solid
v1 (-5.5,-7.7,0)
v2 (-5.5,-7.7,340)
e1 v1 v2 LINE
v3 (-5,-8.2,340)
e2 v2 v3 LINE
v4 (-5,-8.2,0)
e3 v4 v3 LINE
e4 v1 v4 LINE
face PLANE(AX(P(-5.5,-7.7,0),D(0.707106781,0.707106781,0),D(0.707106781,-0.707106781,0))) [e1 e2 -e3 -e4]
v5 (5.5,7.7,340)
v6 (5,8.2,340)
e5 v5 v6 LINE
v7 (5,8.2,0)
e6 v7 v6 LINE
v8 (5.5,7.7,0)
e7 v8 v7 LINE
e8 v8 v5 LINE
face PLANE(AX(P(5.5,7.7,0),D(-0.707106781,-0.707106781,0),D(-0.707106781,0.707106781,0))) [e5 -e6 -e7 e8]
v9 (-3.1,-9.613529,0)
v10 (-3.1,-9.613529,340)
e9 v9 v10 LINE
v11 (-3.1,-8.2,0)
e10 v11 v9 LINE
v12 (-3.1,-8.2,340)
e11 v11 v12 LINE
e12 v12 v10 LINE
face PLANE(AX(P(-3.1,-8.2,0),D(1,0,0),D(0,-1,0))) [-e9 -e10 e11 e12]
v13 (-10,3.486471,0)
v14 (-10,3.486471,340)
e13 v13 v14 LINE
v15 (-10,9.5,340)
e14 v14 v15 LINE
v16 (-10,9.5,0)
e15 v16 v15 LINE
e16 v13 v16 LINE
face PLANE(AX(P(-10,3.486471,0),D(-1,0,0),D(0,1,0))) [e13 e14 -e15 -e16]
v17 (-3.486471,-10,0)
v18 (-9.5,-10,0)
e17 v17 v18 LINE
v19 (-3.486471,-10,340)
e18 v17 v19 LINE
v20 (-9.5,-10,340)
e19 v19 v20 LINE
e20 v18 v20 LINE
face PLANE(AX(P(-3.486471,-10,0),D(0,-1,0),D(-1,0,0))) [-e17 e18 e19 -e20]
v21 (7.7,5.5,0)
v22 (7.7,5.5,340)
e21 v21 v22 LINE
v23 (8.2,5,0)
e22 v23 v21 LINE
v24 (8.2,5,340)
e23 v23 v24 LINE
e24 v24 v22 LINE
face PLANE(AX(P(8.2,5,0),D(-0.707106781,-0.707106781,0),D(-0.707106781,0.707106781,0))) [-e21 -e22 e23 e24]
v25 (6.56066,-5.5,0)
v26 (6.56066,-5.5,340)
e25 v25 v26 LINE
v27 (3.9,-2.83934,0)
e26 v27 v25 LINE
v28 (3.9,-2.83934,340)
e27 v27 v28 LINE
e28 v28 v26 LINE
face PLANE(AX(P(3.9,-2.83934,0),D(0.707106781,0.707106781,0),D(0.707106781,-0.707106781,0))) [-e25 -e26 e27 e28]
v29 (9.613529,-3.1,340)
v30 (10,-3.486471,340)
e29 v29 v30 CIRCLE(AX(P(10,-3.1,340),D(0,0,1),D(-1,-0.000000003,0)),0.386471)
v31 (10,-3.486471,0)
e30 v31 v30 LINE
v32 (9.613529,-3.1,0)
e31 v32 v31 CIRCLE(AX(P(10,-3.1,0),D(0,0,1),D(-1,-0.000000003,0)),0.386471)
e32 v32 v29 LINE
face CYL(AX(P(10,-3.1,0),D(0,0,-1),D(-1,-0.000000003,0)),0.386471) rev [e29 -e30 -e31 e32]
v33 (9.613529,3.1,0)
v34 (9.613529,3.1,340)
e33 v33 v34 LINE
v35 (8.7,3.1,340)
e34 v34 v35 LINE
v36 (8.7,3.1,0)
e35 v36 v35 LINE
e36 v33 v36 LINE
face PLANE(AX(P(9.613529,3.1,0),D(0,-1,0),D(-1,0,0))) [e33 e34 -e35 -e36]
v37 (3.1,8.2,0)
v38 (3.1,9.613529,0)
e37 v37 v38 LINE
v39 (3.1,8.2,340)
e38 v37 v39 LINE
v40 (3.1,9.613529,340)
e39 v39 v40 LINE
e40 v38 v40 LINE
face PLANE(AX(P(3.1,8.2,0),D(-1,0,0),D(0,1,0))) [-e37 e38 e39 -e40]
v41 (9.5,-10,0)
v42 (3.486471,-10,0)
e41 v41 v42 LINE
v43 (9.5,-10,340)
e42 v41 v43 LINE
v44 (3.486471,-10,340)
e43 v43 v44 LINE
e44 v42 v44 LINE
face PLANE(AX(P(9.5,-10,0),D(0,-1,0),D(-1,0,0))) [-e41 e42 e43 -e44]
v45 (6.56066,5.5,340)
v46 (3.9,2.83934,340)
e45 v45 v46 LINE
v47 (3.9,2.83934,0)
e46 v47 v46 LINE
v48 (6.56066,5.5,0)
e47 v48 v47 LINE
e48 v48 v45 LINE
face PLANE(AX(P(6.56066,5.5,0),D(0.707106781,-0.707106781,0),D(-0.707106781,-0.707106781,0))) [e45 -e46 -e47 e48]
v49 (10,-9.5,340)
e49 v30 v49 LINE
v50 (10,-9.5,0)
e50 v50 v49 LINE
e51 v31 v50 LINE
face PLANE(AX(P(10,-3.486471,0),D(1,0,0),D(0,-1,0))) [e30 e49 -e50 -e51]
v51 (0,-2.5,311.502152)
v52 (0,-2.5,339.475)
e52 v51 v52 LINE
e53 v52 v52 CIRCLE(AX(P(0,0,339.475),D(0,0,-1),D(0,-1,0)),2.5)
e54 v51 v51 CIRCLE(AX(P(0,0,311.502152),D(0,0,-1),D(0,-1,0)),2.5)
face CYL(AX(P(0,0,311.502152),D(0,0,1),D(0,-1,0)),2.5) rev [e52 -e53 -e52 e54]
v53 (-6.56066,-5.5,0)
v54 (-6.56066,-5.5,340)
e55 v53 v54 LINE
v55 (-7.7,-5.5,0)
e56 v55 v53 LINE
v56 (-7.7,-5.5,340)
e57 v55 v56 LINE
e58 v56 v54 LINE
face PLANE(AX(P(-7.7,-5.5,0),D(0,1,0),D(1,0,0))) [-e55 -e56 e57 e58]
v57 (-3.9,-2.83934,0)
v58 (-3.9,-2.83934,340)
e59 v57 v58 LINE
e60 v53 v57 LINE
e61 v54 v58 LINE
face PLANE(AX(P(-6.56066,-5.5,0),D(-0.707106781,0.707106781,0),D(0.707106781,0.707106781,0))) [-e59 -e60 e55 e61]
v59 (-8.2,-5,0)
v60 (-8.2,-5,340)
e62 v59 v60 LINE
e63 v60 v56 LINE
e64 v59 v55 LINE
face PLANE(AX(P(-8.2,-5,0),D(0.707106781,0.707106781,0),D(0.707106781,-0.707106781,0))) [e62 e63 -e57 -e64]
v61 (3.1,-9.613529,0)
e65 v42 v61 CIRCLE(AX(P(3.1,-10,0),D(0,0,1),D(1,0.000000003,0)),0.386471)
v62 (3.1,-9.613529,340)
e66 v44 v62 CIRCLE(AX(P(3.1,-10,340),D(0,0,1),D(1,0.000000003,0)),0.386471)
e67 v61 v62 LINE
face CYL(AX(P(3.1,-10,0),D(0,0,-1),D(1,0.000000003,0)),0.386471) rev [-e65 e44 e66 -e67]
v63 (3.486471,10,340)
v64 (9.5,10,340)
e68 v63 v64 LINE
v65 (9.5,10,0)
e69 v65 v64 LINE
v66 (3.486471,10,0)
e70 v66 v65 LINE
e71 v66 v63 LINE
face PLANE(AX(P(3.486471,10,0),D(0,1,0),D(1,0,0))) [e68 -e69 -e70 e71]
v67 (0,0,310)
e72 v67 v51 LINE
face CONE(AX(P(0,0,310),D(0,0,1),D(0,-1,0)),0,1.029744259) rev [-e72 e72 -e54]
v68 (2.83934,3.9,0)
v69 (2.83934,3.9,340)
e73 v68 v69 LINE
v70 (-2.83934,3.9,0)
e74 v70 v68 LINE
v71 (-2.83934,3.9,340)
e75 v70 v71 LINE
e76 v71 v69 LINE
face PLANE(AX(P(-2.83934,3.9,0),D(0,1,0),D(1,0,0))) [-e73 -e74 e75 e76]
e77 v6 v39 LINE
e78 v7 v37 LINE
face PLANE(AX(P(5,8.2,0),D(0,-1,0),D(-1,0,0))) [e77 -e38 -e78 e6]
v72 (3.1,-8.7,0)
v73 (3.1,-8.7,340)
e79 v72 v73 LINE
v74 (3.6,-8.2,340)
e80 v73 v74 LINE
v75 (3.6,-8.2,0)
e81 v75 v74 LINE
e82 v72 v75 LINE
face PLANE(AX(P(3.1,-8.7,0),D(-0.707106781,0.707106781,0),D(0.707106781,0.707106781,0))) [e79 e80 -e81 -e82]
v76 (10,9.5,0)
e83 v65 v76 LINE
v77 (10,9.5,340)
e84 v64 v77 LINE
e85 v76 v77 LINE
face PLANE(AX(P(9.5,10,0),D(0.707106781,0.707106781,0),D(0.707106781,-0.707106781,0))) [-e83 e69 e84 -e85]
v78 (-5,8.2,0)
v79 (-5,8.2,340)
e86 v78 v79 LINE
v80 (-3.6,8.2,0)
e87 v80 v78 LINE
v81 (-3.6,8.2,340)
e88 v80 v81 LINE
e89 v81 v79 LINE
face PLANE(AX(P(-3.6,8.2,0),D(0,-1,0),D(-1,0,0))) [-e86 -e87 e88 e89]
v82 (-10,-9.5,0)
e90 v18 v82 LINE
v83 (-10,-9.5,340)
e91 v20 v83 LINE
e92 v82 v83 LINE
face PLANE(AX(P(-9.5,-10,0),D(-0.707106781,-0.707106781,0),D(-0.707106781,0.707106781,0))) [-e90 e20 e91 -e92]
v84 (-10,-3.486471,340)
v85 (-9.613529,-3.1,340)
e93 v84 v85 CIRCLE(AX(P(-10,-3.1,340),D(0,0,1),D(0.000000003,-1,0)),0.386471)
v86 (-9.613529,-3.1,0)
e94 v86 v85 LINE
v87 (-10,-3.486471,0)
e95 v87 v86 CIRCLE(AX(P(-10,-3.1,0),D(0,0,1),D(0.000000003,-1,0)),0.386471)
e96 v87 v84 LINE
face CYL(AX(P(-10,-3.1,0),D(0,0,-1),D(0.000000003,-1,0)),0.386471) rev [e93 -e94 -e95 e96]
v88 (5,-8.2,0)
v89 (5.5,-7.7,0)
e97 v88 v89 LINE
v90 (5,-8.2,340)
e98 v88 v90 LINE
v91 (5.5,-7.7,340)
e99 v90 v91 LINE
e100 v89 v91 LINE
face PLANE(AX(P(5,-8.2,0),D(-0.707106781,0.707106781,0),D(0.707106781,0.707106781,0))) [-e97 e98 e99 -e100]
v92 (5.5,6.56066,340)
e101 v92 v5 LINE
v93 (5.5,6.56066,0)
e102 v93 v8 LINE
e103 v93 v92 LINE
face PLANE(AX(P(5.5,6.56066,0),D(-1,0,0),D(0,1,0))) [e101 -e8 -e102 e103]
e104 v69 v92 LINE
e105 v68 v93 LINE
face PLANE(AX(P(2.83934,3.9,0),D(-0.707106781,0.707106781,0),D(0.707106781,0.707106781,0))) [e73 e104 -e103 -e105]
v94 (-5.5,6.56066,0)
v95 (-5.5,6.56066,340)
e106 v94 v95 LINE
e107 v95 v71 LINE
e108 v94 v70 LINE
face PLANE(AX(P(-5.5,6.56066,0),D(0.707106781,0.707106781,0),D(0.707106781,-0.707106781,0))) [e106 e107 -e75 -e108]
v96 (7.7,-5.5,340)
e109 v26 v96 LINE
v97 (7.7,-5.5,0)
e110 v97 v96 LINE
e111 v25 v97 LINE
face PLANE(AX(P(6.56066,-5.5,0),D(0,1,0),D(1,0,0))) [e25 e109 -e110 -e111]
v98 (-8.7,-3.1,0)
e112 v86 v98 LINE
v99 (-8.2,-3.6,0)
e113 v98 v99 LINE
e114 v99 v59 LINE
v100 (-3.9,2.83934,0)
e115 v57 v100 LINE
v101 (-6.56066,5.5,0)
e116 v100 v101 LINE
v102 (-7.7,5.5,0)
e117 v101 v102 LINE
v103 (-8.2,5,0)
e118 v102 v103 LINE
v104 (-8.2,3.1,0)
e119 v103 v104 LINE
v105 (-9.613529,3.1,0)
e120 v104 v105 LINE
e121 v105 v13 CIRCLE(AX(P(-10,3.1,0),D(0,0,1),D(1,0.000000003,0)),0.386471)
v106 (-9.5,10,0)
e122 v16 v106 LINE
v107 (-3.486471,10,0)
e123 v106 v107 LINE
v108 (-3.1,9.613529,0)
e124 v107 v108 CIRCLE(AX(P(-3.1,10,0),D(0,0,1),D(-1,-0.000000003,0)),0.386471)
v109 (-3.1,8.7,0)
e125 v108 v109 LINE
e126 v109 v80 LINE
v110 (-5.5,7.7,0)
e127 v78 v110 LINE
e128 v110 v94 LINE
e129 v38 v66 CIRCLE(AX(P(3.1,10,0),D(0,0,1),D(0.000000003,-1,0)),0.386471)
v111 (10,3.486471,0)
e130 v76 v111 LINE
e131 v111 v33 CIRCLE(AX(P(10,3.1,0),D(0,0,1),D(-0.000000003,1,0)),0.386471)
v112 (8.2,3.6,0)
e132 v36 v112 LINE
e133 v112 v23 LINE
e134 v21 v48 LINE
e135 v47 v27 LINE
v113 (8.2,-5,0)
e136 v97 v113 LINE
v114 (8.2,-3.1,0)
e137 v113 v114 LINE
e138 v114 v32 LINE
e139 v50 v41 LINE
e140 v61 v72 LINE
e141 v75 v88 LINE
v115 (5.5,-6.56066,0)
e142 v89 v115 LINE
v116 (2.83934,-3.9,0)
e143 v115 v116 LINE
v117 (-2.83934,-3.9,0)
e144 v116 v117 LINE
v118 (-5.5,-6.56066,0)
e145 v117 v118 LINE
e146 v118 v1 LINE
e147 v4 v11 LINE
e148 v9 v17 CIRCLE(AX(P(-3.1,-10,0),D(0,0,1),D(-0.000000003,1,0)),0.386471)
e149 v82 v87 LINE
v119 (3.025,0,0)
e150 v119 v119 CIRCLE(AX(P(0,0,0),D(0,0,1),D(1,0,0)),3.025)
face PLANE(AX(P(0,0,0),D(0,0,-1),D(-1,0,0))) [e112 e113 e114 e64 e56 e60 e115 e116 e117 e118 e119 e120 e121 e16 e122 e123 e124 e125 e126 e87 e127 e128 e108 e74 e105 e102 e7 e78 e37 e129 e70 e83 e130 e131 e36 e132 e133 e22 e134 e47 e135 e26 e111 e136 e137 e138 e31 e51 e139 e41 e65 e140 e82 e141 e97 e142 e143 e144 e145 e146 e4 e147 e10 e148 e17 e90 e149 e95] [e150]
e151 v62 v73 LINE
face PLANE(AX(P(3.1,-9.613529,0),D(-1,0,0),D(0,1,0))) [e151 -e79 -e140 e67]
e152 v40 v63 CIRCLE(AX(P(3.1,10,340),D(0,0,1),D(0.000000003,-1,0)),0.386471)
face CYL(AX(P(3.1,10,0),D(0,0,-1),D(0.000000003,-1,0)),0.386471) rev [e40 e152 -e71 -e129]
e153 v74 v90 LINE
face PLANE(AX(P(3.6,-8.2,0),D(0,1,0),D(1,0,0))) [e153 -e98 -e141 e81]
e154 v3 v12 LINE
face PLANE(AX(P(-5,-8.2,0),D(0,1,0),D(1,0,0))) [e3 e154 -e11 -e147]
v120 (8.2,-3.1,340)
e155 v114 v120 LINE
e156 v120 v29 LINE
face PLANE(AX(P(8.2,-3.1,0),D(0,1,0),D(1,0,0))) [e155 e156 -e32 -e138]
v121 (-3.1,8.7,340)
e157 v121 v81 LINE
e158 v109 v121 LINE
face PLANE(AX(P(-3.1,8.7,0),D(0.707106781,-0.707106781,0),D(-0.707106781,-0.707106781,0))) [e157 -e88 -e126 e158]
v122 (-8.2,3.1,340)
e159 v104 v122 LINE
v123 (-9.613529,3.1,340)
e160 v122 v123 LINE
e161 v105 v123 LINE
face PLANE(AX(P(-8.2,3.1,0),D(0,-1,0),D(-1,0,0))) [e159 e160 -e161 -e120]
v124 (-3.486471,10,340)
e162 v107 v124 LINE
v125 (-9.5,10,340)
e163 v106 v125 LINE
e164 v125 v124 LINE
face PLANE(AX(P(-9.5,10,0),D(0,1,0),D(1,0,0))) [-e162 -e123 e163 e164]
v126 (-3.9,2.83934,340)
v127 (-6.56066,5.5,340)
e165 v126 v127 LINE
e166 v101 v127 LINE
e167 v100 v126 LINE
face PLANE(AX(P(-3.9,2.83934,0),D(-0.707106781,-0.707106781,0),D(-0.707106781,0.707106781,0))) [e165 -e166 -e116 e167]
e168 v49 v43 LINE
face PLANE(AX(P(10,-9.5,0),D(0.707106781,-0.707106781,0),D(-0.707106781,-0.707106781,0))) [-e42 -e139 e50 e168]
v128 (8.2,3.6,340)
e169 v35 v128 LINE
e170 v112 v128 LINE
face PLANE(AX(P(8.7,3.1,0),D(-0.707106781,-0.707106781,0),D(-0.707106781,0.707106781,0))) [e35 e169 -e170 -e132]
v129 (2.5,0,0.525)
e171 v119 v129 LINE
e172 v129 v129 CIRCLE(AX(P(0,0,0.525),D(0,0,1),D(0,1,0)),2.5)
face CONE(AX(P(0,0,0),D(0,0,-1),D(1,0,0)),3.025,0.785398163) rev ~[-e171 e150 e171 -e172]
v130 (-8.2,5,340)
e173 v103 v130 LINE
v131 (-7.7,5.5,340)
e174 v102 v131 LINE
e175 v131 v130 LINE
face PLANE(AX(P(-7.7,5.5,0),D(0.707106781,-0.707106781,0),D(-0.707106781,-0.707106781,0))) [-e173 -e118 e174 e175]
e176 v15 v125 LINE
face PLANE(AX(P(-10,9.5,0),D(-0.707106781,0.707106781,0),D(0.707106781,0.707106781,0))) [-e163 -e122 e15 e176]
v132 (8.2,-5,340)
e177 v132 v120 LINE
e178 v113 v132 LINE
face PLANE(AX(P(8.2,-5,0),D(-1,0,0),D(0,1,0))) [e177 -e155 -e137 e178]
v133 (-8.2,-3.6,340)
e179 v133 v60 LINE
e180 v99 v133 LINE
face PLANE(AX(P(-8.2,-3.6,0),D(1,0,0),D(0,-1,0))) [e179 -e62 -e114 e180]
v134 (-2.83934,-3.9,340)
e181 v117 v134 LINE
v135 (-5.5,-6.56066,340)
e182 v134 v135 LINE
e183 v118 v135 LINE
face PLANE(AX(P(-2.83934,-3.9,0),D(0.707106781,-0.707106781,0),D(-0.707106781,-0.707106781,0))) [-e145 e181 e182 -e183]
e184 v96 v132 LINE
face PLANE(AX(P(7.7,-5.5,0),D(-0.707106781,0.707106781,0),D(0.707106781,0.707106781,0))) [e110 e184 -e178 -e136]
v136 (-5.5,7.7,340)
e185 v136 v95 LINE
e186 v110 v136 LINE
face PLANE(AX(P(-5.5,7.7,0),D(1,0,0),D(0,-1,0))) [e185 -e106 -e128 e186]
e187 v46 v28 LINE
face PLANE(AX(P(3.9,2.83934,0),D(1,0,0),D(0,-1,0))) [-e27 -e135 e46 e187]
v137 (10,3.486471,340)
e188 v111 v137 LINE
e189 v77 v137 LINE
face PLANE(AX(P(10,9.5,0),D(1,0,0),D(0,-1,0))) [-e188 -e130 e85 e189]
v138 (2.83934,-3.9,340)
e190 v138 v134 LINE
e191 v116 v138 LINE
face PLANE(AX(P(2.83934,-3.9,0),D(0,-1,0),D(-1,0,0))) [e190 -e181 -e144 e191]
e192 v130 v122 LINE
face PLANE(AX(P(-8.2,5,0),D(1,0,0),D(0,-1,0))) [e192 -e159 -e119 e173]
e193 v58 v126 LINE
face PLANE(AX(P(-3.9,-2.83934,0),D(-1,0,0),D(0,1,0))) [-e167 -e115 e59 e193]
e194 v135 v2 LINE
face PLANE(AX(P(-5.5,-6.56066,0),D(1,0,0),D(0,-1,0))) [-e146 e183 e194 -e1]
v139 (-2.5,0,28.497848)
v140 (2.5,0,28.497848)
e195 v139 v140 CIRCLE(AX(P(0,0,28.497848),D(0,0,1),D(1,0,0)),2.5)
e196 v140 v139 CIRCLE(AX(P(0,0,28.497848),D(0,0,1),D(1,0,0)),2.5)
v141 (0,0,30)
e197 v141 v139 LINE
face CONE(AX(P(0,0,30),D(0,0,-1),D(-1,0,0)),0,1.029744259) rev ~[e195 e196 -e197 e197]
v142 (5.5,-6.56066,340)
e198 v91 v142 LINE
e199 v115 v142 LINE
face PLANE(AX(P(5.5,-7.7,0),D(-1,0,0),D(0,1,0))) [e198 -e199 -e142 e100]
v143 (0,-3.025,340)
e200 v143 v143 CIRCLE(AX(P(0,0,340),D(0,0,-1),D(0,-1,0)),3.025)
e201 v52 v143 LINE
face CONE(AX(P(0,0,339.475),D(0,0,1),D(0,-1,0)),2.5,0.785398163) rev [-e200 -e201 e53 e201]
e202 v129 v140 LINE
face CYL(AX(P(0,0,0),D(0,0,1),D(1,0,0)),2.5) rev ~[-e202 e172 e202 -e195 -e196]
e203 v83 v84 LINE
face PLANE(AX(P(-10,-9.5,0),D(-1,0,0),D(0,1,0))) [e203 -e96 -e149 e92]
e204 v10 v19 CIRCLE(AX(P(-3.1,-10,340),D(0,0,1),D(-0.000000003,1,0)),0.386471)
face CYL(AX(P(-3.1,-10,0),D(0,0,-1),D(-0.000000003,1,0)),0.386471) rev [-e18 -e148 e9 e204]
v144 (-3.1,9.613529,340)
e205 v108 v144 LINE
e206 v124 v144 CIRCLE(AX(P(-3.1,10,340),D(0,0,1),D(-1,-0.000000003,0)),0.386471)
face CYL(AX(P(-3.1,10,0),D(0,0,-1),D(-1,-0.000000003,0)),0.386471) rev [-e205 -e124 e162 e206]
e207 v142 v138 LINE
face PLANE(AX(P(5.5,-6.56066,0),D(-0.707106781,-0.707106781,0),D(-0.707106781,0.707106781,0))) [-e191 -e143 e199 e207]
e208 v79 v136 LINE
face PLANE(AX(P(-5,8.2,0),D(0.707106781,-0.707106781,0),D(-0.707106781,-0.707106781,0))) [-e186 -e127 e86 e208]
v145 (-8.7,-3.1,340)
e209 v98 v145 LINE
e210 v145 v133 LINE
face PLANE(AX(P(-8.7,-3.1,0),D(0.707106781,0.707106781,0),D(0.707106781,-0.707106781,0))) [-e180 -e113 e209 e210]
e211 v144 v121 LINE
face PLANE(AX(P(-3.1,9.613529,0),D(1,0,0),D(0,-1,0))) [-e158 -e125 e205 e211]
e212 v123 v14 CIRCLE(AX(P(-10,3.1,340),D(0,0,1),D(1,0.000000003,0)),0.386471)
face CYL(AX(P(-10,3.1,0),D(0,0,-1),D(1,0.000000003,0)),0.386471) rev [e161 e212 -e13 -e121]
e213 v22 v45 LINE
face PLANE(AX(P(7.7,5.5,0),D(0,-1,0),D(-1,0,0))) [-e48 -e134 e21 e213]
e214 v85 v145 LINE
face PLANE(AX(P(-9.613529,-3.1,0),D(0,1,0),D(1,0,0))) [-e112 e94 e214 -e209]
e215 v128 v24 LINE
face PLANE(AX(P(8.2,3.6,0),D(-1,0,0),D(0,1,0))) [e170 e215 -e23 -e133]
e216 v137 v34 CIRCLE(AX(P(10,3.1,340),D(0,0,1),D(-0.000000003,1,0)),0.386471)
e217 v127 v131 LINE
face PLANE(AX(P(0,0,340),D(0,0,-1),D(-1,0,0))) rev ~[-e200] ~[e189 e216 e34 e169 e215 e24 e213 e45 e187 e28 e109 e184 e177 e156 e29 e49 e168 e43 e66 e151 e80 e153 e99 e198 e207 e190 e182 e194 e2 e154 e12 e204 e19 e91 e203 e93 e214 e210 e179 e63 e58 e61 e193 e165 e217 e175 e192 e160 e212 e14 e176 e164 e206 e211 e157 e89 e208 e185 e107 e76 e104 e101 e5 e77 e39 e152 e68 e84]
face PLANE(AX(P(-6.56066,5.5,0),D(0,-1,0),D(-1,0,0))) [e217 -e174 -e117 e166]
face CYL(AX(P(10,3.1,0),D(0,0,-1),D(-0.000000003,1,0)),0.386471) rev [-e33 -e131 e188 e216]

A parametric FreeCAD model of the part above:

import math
import FreeCAD as App
import Part
import Sketcher
Q = App.Units.Quantity


def add_polygon(sketch, points):
    """Adds a closed chain of lines whose ends are joined by coincident constraints."""
    first, n = sketch.GeometryCount, len(points)
    for a, b in zip(points, points[1:] + points[:1]):
        sketch.addGeometry(Part.LineSegment(App.Vector(*a, 0), App.Vector(*b, 0)), False)
    for i in range(n):
        sketch.addConstraint(Sketcher.Constraint("Coincident", first + i, 2, first + (i + 1) % n, 1))

doc = App.newDocument("Part")
body = doc.addObject("PartDesign::Body", "Body")

sketch1 = body.newObject("Sketcher::SketchObject", "Sketch")
sketch1.AttachmentSupport = (doc.getObject("XY_Plane"), [""])
sketch1.MapMode = "FlatFace"
sketch1.addGeometry(Part.LineSegment(App.Vector(-3.49, 10, 0), App.Vector(-9.5, 10, 0)), False)
sketch1.addGeometry(Part.LineSegment(App.Vector(-9.5, 10, 0), App.Vector(-10, 9.5, 0)), False)
sketch1.addGeometry(Part.LineSegment(App.Vector(-10, 9.5, 0), App.Vector(-10, 3.49, 0)), False)
sketch1.addGeometry(Part.ArcOfCircle(Part.Circle(App.Vector(-10, 3.1, 0), App.Vector(0, 0, 1), 0.39), math.radians(0), math.radians(90)), False)
sketch1.addGeometry(Part.LineSegment(App.Vector(-9.61, 3.1, 0), App.Vector(-8.2, 3.1, 0)), False)
sketch1.addGeometry(Part.LineSegment(App.Vector(-8.2, 3.1, 0), App.Vector(-8.2, 5, 0)), False)
sketch1.addGeometry(Part.LineSegment(App.Vector(-8.2, 5, 0), App.Vector(-7.7, 5.5, 0)), False)
sketch1.addGeometry(Part.LineSegment(App.Vector(-7.7, 5.5, 0), App.Vector(-6.56, 5.5, 0)), False)
sketch1.addGeometry(Part.LineSegment(App.Vector(-6.56, 5.5, 0), App.Vector(-3.9, 2.84, 0)), False)
sketch1.addGeometry(Part.LineSegment(App.Vector(-3.9, 2.84, 0), App.Vector(-3.9, -2.84, 0)), False)
sketch1.addGeometry(Part.LineSegment(App.Vector(-3.9, -2.84, 0), App.Vector(-6.56, -5.5, 0)), False)
sketch1.addGeometry(Part.LineSegment(App.Vector(-6.56, -5.5, 0), App.Vector(-7.7, -5.5, 0)), False)
sketch1.addGeometry(Part.LineSegment(App.Vector(-7.7, -5.5, 0), App.Vector(-8.2, -5, 0)), False)
sketch1.addGeometry(Part.LineSegment(App.Vector(-8.2, -5, 0), App.Vector(-8.2, -3.6, 0)), False)
sketch1.addGeometry(Part.LineSegment(App.Vector(-8.2, -3.6, 0), App.Vector(-8.7, -3.1, 0)), False)
sketch1.addGeometry(Part.LineSegment(App.Vector(-8.7, -3.1, 0), App.Vector(-9.61, -3.1, 0)), False)
sketch1.addGeometry(Part.ArcOfCircle(Part.Circle(App.Vector(-10, -3.1, 0), App.Vector(0, 0, 1), 0.39), math.radians(-90), math.radians(0)), False)
sketch1.addGeometry(Part.LineSegment(App.Vector(-10, -3.49, 0), App.Vector(-10, -9.5, 0)), False)
sketch1.addGeometry(Part.LineSegment(App.Vector(-10, -9.5, 0), App.Vector(-9.5, -10, 0)), False)
sketch1.addGeometry(Part.LineSegment(App.Vector(-9.5, -10, 0), App.Vector(-3.49, -10, 0)), False)
sketch1.addGeometry(Part.ArcOfCircle(Part.Circle(App.Vector(-3.1, -10, 0), App.Vector(0, 0, 1), 0.39), math.radians(90), math.radians(180)), False)
sketch1.addGeometry(Part.LineSegment(App.Vector(-3.1, -9.61, 0), App.Vector(-3.1, -8.2, 0)), False)
sketch1.addGeometry(Part.LineSegment(App.Vector(-3.1, -8.2, 0), App.Vector(-5, -8.2, 0)), False)
sketch1.addGeometry(Part.LineSegment(App.Vector(-5, -8.2, 0), App.Vector(-5.5, -7.7, 0)), False)
sketch1.addGeometry(Part.LineSegment(App.Vector(-5.5, -7.7, 0), App.Vector(-5.5, -6.56, 0)), False)
sketch1.addGeometry(Part.LineSegment(App.Vector(-5.5, -6.56, 0), App.Vector(-2.84, -3.9, 0)), False)
sketch1.addGeometry(Part.LineSegment(App.Vector(-2.84, -3.9, 0), App.Vector(2.84, -3.9, 0)), False)
sketch1.addGeometry(Part.LineSegment(App.Vector(2.84, -3.9, 0), App.Vector(5.5, -6.56, 0)), False)
sketch1.addGeometry(Part.LineSegment(App.Vector(5.5, -6.56, 0), App.Vector(5.5, -7.7, 0)), False)
sketch1.addGeometry(Part.LineSegment(App.Vector(5.5, -7.7, 0), App.Vector(5, -8.2, 0)), False)
sketch1.addGeometry(Part.LineSegment(App.Vector(5, -8.2, 0), App.Vector(3.6, -8.2, 0)), False)
sketch1.addGeometry(Part.LineSegment(App.Vector(3.6, -8.2, 0), App.Vector(3.1, -8.7, 0)), False)
sketch1.addGeometry(Part.LineSegment(App.Vector(3.1, -8.7, 0), App.Vector(3.1, -9.61, 0)), False)
sketch1.addGeometry(Part.ArcOfCircle(Part.Circle(App.Vector(3.1, -10, 0), App.Vector(0, 0, 1), 0.39), math.radians(0), math.radians(90)), False)
sketch1.addGeometry(Part.LineSegment(App.Vector(3.49, -10, 0), App.Vector(9.5, -10, 0)), False)
sketch1.addGeometry(Part.LineSegment(App.Vector(9.5, -10, 0), App.Vector(10, -9.5, 0)), False)
sketch1.addGeometry(Part.LineSegment(App.Vector(10, -9.5, 0), App.Vector(10, -3.49, 0)), False)
sketch1.addGeometry(Part.ArcOfCircle(Part.Circle(App.Vector(10, -3.1, 0), App.Vector(0, 0, 1), 0.39), math.radians(-180), math.radians(-90)), False)
sketch1.addGeometry(Part.LineSegment(App.Vector(9.61, -3.1, 0), App.Vector(8.2, -3.1, 0)), False)
sketch1.addGeometry(Part.LineSegment(App.Vector(8.2, -3.1, 0), App.Vector(8.2, -5, 0)), False)
sketch1.addGeometry(Part.LineSegment(App.Vector(8.2, -5, 0), App.Vector(7.7, -5.5, 0)), False)
sketch1.addGeometry(Part.LineSegment(App.Vector(7.7, -5.5, 0), App.Vector(6.56, -5.5, 0)), False)
sketch1.addGeometry(Part.LineSegment(App.Vector(6.56, -5.5, 0), App.Vector(3.9, -2.84, 0)), False)
sketch1.addGeometry(Part.LineSegment(App.Vector(3.9, -2.84, 0), App.Vector(3.9, 2.84, 0)), False)
sketch1.addGeometry(Part.LineSegment(App.Vector(3.9, 2.84, 0), App.Vector(6.56, 5.5, 0)), False)
sketch1.addGeometry(Part.LineSegment(App.Vector(6.56, 5.5, 0), App.Vector(7.7, 5.5, 0)), False)
sketch1.addGeometry(Part.LineSegment(App.Vector(7.7, 5.5, 0), App.Vector(8.2, 5, 0)), False)
sketch1.addGeometry(Part.LineSegment(App.Vector(8.2, 5, 0), App.Vector(8.2, 3.6, 0)), False)
sketch1.addGeometry(Part.LineSegment(App.Vector(8.2, 3.6, 0), App.Vector(8.7, 3.1, 0)), False)
sketch1.addGeometry(Part.LineSegment(App.Vector(8.7, 3.1, 0), App.Vector(9.61, 3.1, 0)), False)
sketch1.addGeometry(Part.ArcOfCircle(Part.Circle(App.Vector(10, 3.1, 0), App.Vector(0, 0, 1), 0.39), math.radians(90), math.radians(180)), False)
sketch1.addGeometry(Part.LineSegment(App.Vector(10, 3.49, 0), App.Vector(10, 9.5, 0)), False)
sketch1.addGeometry(Part.LineSegment(App.Vector(10, 9.5, 0), App.Vector(9.5, 10, 0)), False)
sketch1.addGeometry(Part.LineSegment(App.Vector(9.5, 10, 0), App.Vector(3.49, 10, 0)), False)
sketch1.addGeometry(Part.ArcOfCircle(Part.Circle(App.Vector(3.1, 10, 0), App.Vector(0, 0, 1), 0.39), math.radians(-90), math.radians(0)), False)
sketch1.addGeometry(Part.LineSegment(App.Vector(3.1, 9.61, 0), App.Vector(3.1, 8.2, 0)), False)
sketch1.addGeometry(Part.LineSegment(App.Vector(3.1, 8.2, 0), App.Vector(5, 8.2, 0)), False)
sketch1.addGeometry(Part.LineSegment(App.Vector(5, 8.2, 0), App.Vector(5.5, 7.7, 0)), False)
sketch1.addGeometry(Part.LineSegment(App.Vector(5.5, 7.7, 0), App.Vector(5.5, 6.56, 0)), False)
sketch1.addGeometry(Part.LineSegment(App.Vector(5.5, 6.56, 0), App.Vector(2.84, 3.9, 0)), False)
sketch1.addGeometry(Part.LineSegment(App.Vector(2.84, 3.9, 0), App.Vector(-2.84, 3.9, 0)), False)
sketch1.addGeometry(Part.LineSegment(App.Vector(-2.84, 3.9, 0), App.Vector(-5.5, 6.56, 0)), False)
sketch1.addGeometry(Part.LineSegment(App.Vector(-5.5, 6.56, 0), App.Vector(-5.5, 7.7, 0)), False)
sketch1.addGeometry(Part.LineSegment(App.Vector(-5.5, 7.7, 0), App.Vector(-5, 8.2, 0)), False)
sketch1.addGeometry(Part.LineSegment(App.Vector(-5, 8.2, 0), App.Vector(-3.6, 8.2, 0)), False)
sketch1.addGeometry(Part.LineSegment(App.Vector(-3.6, 8.2, 0), App.Vector(-3.1, 8.7, 0)), False)
sketch1.addGeometry(Part.LineSegment(App.Vector(-3.1, 8.7, 0), App.Vector(-3.1, 9.61, 0)), False)
sketch1.addGeometry(Part.ArcOfCircle(Part.Circle(App.Vector(-3.1, 10, 0), App.Vector(0, 0, 1), 0.39), math.radians(-180), math.radians(-90)), False)
sketch1.addConstraint(Sketcher.Constraint("Coincident", 0, 2, 1, 1))
sketch1.addConstraint(Sketcher.Constraint("Coincident", 1, 2, 2, 1))
sketch1.addConstraint(Sketcher.Constraint("Coincident", 2, 2, 3, 2))
sketch1.addConstraint(Sketcher.Constraint("Coincident", 3, 1, 4, 1))
sketch1.addConstraint(Sketcher.Constraint("Coincident", 4, 2, 5, 1))
sketch1.addConstraint(Sketcher.Constraint("Coincident", 5, 2, 6, 1))
sketch1.addConstraint(Sketcher.Constraint("Coincident", 6, 2, 7, 1))
sketch1.addConstraint(Sketcher.Constraint("Coincident", 7, 2, 8, 1))
sketch1.addConstraint(Sketcher.Constraint("Coincident", 8, 2, 9, 1))
sketch1.addConstraint(Sketcher.Constraint("Coincident", 9, 2, 10, 1))
sketch1.addConstraint(Sketcher.Constraint("Coincident", 10, 2, 11, 1))
sketch1.addConstraint(Sketcher.Constraint("Coincident", 11, 2, 12, 1))
sketch1.addConstraint(Sketcher.Constraint("Coincident", 12, 2, 13, 1))
sketch1.addConstraint(Sketcher.Constraint("Coincident", 13, 2, 14, 1))
sketch1.addConstraint(Sketcher.Constraint("Coincident", 14, 2, 15, 1))
sketch1.addConstraint(Sketcher.Constraint("Coincident", 15, 2, 16, 2))
sketch1.addConstraint(Sketcher.Constraint("Coincident", 16, 1, 17, 1))
sketch1.addConstraint(Sketcher.Constraint("Coincident", 17, 2, 18, 1))
sketch1.addConstraint(Sketcher.Constraint("Coincident", 18, 2, 19, 1))
sketch1.addConstraint(Sketcher.Constraint("Coincident", 19, 2, 20, 2))
sketch1.addConstraint(Sketcher.Constraint("Coincident", 20, 1, 21, 1))
sketch1.addConstraint(Sketcher.Constraint("Coincident", 21, 2, 22, 1))
sketch1.addConstraint(Sketcher.Constraint("Coincident", 22, 2, 23, 1))
sketch1.addConstraint(Sketcher.Constraint("Coincident", 23, 2, 24, 1))
sketch1.addConstraint(Sketcher.Constraint("Coincident", 24, 2, 25, 1))
sketch1.addConstraint(Sketcher.Constraint("Coincident", 25, 2, 26, 1))
sketch1.addConstraint(Sketcher.Constraint("Coincident", 26, 2, 27, 1))
sketch1.addConstraint(Sketcher.Constraint("Coincident", 27, 2, 28, 1))
sketch1.addConstraint(Sketcher.Constraint("Coincident", 28, 2, 29, 1))
sketch1.addConstraint(Sketcher.Constraint("Coincident", 29, 2, 30, 1))
sketch1.addConstraint(Sketcher.Constraint("Coincident", 30, 2, 31, 1))
sketch1.addConstraint(Sketcher.Constraint("Coincident", 31, 2, 32, 1))
sketch1.addConstraint(Sketcher.Constraint("Coincident", 32, 2, 33, 2))
sketch1.addConstraint(Sketcher.Constraint("Coincident", 33, 1, 34, 1))
sketch1.addConstraint(Sketcher.Constraint("Coincident", 34, 2, 35, 1))
sketch1.addConstraint(Sketcher.Constraint("Coincident", 35, 2, 36, 1))
sketch1.addConstraint(Sketcher.Constraint("Coincident", 36, 2, 37, 2))
sketch1.addConstraint(Sketcher.Constraint("Coincident", 37, 1, 38, 1))
sketch1.addConstraint(Sketcher.Constraint("Coincident", 38, 2, 39, 1))
sketch1.addConstraint(Sketcher.Constraint("Coincident", 39, 2, 40, 1))
sketch1.addConstraint(Sketcher.Constraint("Coincident", 40, 2, 41, 1))
sketch1.addConstraint(Sketcher.Constraint("Coincident", 41, 2, 42, 1))
sketch1.addConstraint(Sketcher.Constraint("Coincident", 42, 2, 43, 1))
sketch1.addConstraint(Sketcher.Constraint("Coincident", 43, 2, 44, 1))
sketch1.addConstraint(Sketcher.Constraint("Coincident", 44, 2, 45, 1))
sketch1.addConstraint(Sketcher.Constraint("Coincident", 45, 2, 46, 1))
sketch1.addConstraint(Sketcher.Constraint("Coincident", 46, 2, 47, 1))
sketch1.addConstraint(Sketcher.Constraint("Coincident", 47, 2, 48, 1))
sketch1.addConstraint(Sketcher.Constraint("Coincident", 48, 2, 49, 1))
sketch1.addConstraint(Sketcher.Constraint("Coincident", 49, 2, 50, 2))
sketch1.addConstraint(Sketcher.Constraint("Coincident", 50, 1, 51, 1))
sketch1.addConstraint(Sketcher.Constraint("Coincident", 51, 2, 52, 1))
sketch1.addConstraint(Sketcher.Constraint("Coincident", 52, 2, 53, 1))
sketch1.addConstraint(Sketcher.Constraint("Coincident", 53, 2, 54, 2))
sketch1.addConstraint(Sketcher.Constraint("Coincident", 54, 1, 55, 1))
sketch1.addConstraint(Sketcher.Constraint("Coincident", 55, 2, 56, 1))
sketch1.addConstraint(Sketcher.Constraint("Coincident", 56, 2, 57, 1))
sketch1.addConstraint(Sketcher.Constraint("Coincident", 57, 2, 58, 1))
sketch1.addConstraint(Sketcher.Constraint("Coincident", 58, 2, 59, 1))
sketch1.addConstraint(Sketcher.Constraint("Coincident", 59, 2, 60, 1))
sketch1.addConstraint(Sketcher.Constraint("Coincident", 60, 2, 61, 1))
sketch1.addConstraint(Sketcher.Constraint("Coincident", 61, 2, 62, 1))
sketch1.addConstraint(Sketcher.Constraint("Coincident", 62, 2, 63, 1))
sketch1.addConstraint(Sketcher.Constraint("Coincident", 63, 2, 64, 1))
sketch1.addConstraint(Sketcher.Constraint("Coincident", 64, 2, 65, 1))
sketch1.addConstraint(Sketcher.Constraint("Coincident", 65, 2, 66, 1))
sketch1.addConstraint(Sketcher.Constraint("Coincident", 66, 2, 67, 2))
sketch1.addConstraint(Sketcher.Constraint("Coincident", 67, 1, 0, 1))
sketch1.addConstraint(Sketcher.Constraint("Horizontal", 0))
sketch1.addConstraint(Sketcher.Constraint("Vertical", 2))
sketch1.addConstraint(Sketcher.Constraint("Horizontal", 4))
sketch1.addConstraint(Sketcher.Constraint("Vertical", 5))
sketch1.addConstraint(Sketcher.Constraint("Horizontal", 7))
sketch1.addConstraint(Sketcher.Constraint("Vertical", 9))
sketch1.addConstraint(Sketcher.Constraint("Horizontal", 11))
sketch1.addConstraint(Sketcher.Constraint("Vertical", 13))
sketch1.addConstraint(Sketcher.Constraint("Horizontal", 15))
sketch1.addConstraint(Sketcher.Constraint("Vertical", 17))
sketch1.addConstraint(Sketcher.Constraint("Horizontal", 19))
sketch1.addConstraint(Sketcher.Constraint("Vertical", 21))
sketch1.addConstraint(Sketcher.Constraint("Horizontal", 22))
sketch1.addConstraint(Sketcher.Constraint("Vertical", 24))
sketch1.addConstraint(Sketcher.Constraint("Horizontal", 26))
sketch1.addConstraint(Sketcher.Constraint("Vertical", 28))
sketch1.addConstraint(Sketcher.Constraint("Horizontal", 30))
sketch1.addConstraint(Sketcher.Constraint("Vertical", 32))
sketch1.addConstraint(Sketcher.Constraint("Horizontal", 34))
sketch1.addConstraint(Sketcher.Constraint("Vertical", 36))
sketch1.addConstraint(Sketcher.Constraint("Horizontal", 38))
sketch1.addConstraint(Sketcher.Constraint("Vertical", 39))
sketch1.addConstraint(Sketcher.Constraint("Horizontal", 41))
sketch1.addConstraint(Sketcher.Constraint("Vertical", 43))
sketch1.addConstraint(Sketcher.Constraint("Horizontal", 45))
sketch1.addConstraint(Sketcher.Constraint("Vertical", 47))
sketch1.addConstraint(Sketcher.Constraint("Horizontal", 49))
sketch1.addConstraint(Sketcher.Constraint("Vertical", 51))
sketch1.addConstraint(Sketcher.Constraint("Horizontal", 53))
sketch1.addConstraint(Sketcher.Constraint("Vertical", 55))
sketch1.addConstraint(Sketcher.Constraint("Horizontal", 56))
sketch1.addConstraint(Sketcher.Constraint("Vertical", 58))
sketch1.addConstraint(Sketcher.Constraint("Horizontal", 60))
sketch1.addConstraint(Sketcher.Constraint("Vertical", 62))
sketch1.addConstraint(Sketcher.Constraint("Horizontal", 64))
sketch1.addConstraint(Sketcher.Constraint("Vertical", 66))
sketch1.addConstraint(Sketcher.Constraint("Equal", 3, 16))
sketch1.addConstraint(Sketcher.Constraint("Equal", 16, 20))
sketch1.addConstraint(Sketcher.Constraint("Equal", 20, 33))
sketch1.addConstraint(Sketcher.Constraint("Equal", 33, 37))
sketch1.addConstraint(Sketcher.Constraint("Equal", 37, 50))
sketch1.addConstraint(Sketcher.Constraint("Equal", 50, 54))
sketch1.addConstraint(Sketcher.Constraint("Equal", 54, 67))
sketch1.addConstraint(Sketcher.Constraint("Symmetric", 3, 3, 37, 3, -1, 1))
sketch1.addConstraint(Sketcher.Constraint("Symmetric", 16, 3, 50, 3, -1, 1))
sketch1.addConstraint(Sketcher.Constraint("Symmetric", 20, 3, 54, 3, -1, 1))
sketch1.addConstraint(Sketcher.Constraint("Symmetric", 33, 3, 67, 3, -1, 1))
sketch1.addConstraint(Sketcher.Constraint("Symmetric", 0, 2, 34, 2, -1, 1))
sketch1.addConstraint(Sketcher.Constraint("Symmetric", 1, 2, 35, 2, -1, 1))
sketch1.addConstraint(Sketcher.Constraint("Symmetric", 4, 2, 38, 2, -1, 1))
sketch1.addConstraint(Sketcher.Constraint("Symmetric", 6, 2, 40, 2, -1, 1))
sketch1.addConstraint(Sketcher.Constraint("Symmetric", 8, 2, 42, 2, -1, 1))
sketch1.addConstraint(Sketcher.Constraint("Symmetric", 10, 2, 44, 2, -1, 1))
sketch1.addConstraint(Sketcher.Constraint("Symmetric", 12, 2, 46, 2, -1, 1))
sketch1.addConstraint(Sketcher.Constraint("Symmetric", 14, 2, 48, 2, -1, 1))
sketch1.addConstraint(Sketcher.Constraint("Symmetric", 17, 2, 51, 2, -1, 1))
sketch1.addConstraint(Sketcher.Constraint("Symmetric", 18, 2, 52, 2, -1, 1))
sketch1.addConstraint(Sketcher.Constraint("Symmetric", 21, 2, 55, 2, -1, 1))
sketch1.addConstraint(Sketcher.Constraint("Symmetric", 23, 2, 57, 2, -1, 1))
sketch1.addConstraint(Sketcher.Constraint("Symmetric", 25, 2, 59, 2, -1, 1))
sketch1.addConstraint(Sketcher.Constraint("Symmetric", 27, 2, 61, 2, -1, 1))
sketch1.addConstraint(Sketcher.Constraint("Symmetric", 29, 2, 63, 2, -1, 1))
sketch1.addConstraint(Sketcher.Constraint("Symmetric", 31, 2, 65, 2, -1, 1))
sketch1.addConstraint(Sketcher.Constraint("Symmetric", 20, 3, 33, 3, -2))
sketch1.addConstraint(Sketcher.Constraint("Symmetric", 16, 3, 37, 3, -2))
sketch1.addConstraint(Sketcher.Constraint("Symmetric", 24, 2, 27, 2, -2))
sketch1.addConstraint(Sketcher.Constraint("Symmetric", 22, 2, 29, 2, -2))
sketch1.addConstraint(Sketcher.Constraint("Symmetric", 18, 2, 34, 2, -2))
sketch1.addConstraint(Sketcher.Constraint("Symmetric", 17, 2, 35, 2, -2))
sketch1.addConstraint(Sketcher.Constraint("Symmetric", 12, 2, 39, 2, -2))
sketch1.addConstraint(Sketcher.Constraint("Symmetric", 11, 2, 40, 2, -2))
sketch1.addConstraint(Sketcher.Constraint("Parallel", 1, 6))
sketch1.addConstraint(Sketcher.Constraint("Perpendicular", 6, 8))
sketch1.addConstraint(Sketcher.Constraint("Perpendicular", 8, 10))
sketch1.addConstraint(Sketcher.Constraint("Perpendicular", 10, 12))
sketch1.addConstraint(Sketcher.Constraint("Parallel", 12, 14))
sketch1.addConstraint(Sketcher.Constraint("Parallel", 14, 18))
sketch1.addConstraint(Sketcher.Constraint("Parallel", 18, 23))
sketch1.addConstraint(Sketcher.Constraint("Perpendicular", 23, 25))
sketch1.addConstraint(Sketcher.Constraint("Perpendicular", 25, 27))
sketch1.addConstraint(Sketcher.Constraint("Perpendicular", 27, 29))
sketch1.addConstraint(Sketcher.Constraint("Parallel", 29, 31))
sketch1.addConstraint(Sketcher.Constraint("Perpendicular", 40, 42))
sketch1.addConstraint(Sketcher.Constraint("Perpendicular", 42, 44))
sketch1.addConstraint(Sketcher.Constraint("Perpendicular", 44, 46))
sketch1.addConstraint(Sketcher.Constraint("Parallel", 46, 48))
sketch1.addConstraint(Sketcher.Constraint("Parallel", 52, 57))
sketch1.addConstraint(Sketcher.Constraint("Perpendicular", 57, 59))
sketch1.addConstraint(Sketcher.Constraint("Perpendicular", 59, 61))
sketch1.addConstraint(Sketcher.Constraint("Perpendicular", 61, 63))
sketch1.addConstraint(Sketcher.Constraint("Parallel", 63, 65))
sketch1.addConstraint(Sketcher.Constraint("Horizontal", 67, 3, 0, 2))
sketch1.addConstraint(Sketcher.Constraint("Horizontal", 50, 3, 3, 1))
sketch1.addConstraint(Sketcher.Constraint("Horizontal", 37, 3, 14, 2))
sketch1.addConstraint(Sketcher.Constraint("Horizontal", 9, 2, 42, 2))
sketch1.addConstraint(Sketcher.Constraint("Vertical", 16, 3, 1, 2))
sketch1.addConstraint(Sketcher.Constraint("Vertical", 67, 3, 20, 1))
sketch1.addConstraint(Sketcher.Constraint("Vertical", 54, 3, 31, 2))
sketch1.addConstraint(Sketcher.Constraint("Equal", 53, 2))
sketch1.addConstraint(Sketcher.Constraint("Equal", 56, 5))
sketch1.addConstraint(Sketcher.Constraint("Equal", 60, 9))
sketch1.addConstraint(Sketcher.Constraint("Equal", 64, 13))
sketch1.addConstraint(Sketcher.Constraint("Equal", 38, 21))
sketch1.addConstraint(Sketcher.Constraint("Equal", 45, 24))
sketch1.addConstraint(Sketcher.Constraint("Equal", 1, 6))
sketch1.addConstraint(Sketcher.Constraint("Equal", 12, 14))
sketch1.addConstraint(Sketcher.Constraint("Equal", 18, 23))
sketch1.addConstraint(Sketcher.Constraint("Equal", 10, 25))
sketch1.addConstraint(Sketcher.Constraint("DistanceX", 22, 2, 22, 1, Q("1.9 mm")))
sketch1.addConstraint(Sketcher.Constraint("DistanceX", 30, 2, 30, 1, Q("1.4 mm")))
sketch1.addConstraint(Sketcher.Constraint("DistanceX", 3, 3, -1, 1, Q("10 mm")))
sketch1.addConstraint(Sketcher.Constraint("DistanceY", -1, 1, 5, 2, Q("5 mm")))
sketch1.addConstraint(Sketcher.Constraint("DistanceX", 4, 2, -1, 1, Q("8.2 mm")))
sketch1.addConstraint(Sketcher.Constraint("DistanceX", 8, 2, -1, 1, Q("3.9 mm")))
sketch1.addConstraint(Sketcher.Constraint("Radius", 3, Q("0.386471 mm")))
sketch1.addConstraint(Sketcher.Constraint("DistanceX", 7, 1, 7, 2, Q("1.13934 mm")))
pad1 = body.newObject("PartDesign::Pad", "Pad")
pad1.Profile = sketch1
pad1.Length = 340

sketch2 = body.newObject("Sketcher::SketchObject", "Sketch001")
sketch2.AttachmentSupport = (doc.getObject("YZ_Plane"), [""])
sketch2.MapMode = "FlatFace"
add_polygon(sketch2, [(0, 310), (0, 340), (-3, 340), (-2.5, 339.5), (-2.5, 311.5)])
sketch2.addConstraint(Sketcher.Constraint("Vertical", 0))
sketch2.addConstraint(Sketcher.Constraint("Horizontal", 1))
sketch2.addConstraint(Sketcher.Constraint("Vertical", 3))
sketch2.addConstraint(Sketcher.Constraint("PointOnObject", 0, 2, -2))
sketch2.addConstraint(Sketcher.Constraint("DistanceY", 0, 1, 0, 2, Q("30 mm")))
sketch2.addConstraint(Sketcher.Constraint("Angle", 2, Q("-45 deg")))
sketch2.addConstraint(Sketcher.Constraint("Angle", 4, Q("-31 deg")))
sketch2.addConstraint(Sketcher.Constraint("DistanceY", -1, 1, 0, 2, Q("340 mm")))
sketch2.addConstraint(Sketcher.Constraint("DistanceX", 2, 2, -1, 1, Q("2.5 mm")))
sketch2.addConstraint(Sketcher.Constraint("DistanceX", 1, 2, 1, 1, Q("3.025 mm")))
groove = body.newObject("PartDesign::Groove", "Groove")
groove.Profile = sketch2
groove.ReferenceAxis = (sketch2, ["V_Axis"])
groove.Angle = 360

sketch3 = body.newObject("Sketcher::SketchObject", "Sketch002")
sketch3.AttachmentSupport = (doc.getObject("XY_Plane"), [""])
sketch3.MapMode = "FlatFace"
sketch3.addGeometry(Part.Circle(App.Vector(0, 0, 0), App.Vector(0, 0, 1), 2.5), False)
sketch3.addConstraint(Sketcher.Constraint("Coincident", 0, 3, -1, 1))
sketch3.addConstraint(Sketcher.Constraint("Diameter", 0, Q("5 mm")))
doc.recompute()
hole = body.newObject("PartDesign::Hole", "Hole")
hole.Profile = sketch3
hole.ThreadType = "None"
hole.Diameter = 5
hole.DepthType = "Dimension"
hole.Depth = 28.497848
hole.DrillPoint = "Angled"
hole.DrillPointAngle = 118
hole.HoleCutType = "Countersink"
hole.HoleCutDiameter = 6.05
hole.HoleCutCountersinkAngle = 90
hole.Reversed = True

doc.recompute()
